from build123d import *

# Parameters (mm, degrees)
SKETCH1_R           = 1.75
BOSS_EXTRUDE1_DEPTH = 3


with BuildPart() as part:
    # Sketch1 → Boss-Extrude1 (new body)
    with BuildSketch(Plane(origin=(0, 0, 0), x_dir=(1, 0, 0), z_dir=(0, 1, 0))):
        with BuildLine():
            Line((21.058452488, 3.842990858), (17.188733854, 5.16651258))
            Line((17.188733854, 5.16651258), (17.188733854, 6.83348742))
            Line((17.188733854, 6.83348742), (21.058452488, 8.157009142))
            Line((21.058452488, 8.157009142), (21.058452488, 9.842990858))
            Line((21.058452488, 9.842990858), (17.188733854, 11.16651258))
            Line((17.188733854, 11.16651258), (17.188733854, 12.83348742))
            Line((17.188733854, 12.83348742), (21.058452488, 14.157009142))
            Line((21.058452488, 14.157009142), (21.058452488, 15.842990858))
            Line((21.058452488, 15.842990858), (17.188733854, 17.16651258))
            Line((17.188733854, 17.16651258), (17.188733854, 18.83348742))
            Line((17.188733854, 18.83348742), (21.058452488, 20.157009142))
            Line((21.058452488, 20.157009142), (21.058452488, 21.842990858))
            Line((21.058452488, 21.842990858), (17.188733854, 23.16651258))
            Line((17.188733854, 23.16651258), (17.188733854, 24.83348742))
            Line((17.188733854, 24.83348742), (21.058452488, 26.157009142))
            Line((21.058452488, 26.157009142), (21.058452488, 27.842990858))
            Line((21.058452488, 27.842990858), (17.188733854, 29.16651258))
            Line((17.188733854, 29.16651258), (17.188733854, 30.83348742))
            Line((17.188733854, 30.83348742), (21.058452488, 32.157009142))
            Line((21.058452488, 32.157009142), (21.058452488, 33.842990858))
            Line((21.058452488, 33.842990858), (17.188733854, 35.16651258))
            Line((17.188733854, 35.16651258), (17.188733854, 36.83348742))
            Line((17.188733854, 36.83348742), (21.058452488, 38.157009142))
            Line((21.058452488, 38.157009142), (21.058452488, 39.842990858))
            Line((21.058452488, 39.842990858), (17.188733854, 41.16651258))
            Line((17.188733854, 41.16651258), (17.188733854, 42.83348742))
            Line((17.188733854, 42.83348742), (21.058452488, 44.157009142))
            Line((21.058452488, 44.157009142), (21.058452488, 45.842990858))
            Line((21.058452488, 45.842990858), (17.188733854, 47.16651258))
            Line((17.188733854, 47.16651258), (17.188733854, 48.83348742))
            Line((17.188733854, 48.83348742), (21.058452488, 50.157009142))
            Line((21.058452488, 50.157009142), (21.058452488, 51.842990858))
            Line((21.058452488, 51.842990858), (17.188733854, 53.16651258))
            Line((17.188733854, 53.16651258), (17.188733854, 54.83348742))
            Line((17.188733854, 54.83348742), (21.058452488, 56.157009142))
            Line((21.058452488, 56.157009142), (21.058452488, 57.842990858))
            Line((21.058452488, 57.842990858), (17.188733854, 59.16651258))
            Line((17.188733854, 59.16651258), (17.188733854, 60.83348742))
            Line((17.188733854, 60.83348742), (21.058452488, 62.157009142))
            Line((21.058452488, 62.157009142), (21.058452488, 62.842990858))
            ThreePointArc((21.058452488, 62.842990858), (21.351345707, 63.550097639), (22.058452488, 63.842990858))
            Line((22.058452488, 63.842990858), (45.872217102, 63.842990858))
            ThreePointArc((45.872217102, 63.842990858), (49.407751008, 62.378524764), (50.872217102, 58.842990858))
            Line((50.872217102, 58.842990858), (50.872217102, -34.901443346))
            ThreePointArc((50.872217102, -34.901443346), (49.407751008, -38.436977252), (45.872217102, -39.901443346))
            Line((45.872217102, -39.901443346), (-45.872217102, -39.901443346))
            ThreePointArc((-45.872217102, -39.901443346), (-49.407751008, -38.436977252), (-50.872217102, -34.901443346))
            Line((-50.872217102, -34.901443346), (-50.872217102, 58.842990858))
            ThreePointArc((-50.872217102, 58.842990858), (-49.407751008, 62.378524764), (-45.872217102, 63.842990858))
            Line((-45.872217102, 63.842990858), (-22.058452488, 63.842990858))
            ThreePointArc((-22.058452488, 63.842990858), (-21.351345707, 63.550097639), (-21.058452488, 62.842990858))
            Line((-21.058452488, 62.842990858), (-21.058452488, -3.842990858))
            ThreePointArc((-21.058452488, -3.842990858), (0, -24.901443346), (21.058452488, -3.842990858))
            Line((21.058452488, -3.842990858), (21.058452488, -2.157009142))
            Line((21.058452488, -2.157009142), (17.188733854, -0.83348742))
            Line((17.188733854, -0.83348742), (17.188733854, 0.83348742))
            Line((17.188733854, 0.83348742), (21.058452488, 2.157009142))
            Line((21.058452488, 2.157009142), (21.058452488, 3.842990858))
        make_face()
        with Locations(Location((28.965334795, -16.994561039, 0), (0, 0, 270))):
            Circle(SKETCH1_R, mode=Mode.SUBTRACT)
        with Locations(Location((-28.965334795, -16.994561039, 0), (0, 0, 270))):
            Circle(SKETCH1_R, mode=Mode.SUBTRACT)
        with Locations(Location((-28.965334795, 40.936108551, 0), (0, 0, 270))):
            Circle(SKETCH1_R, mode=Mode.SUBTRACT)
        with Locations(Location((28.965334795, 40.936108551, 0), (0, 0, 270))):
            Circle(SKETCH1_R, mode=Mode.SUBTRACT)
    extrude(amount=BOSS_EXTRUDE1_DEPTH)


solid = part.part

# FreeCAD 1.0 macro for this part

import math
import FreeCAD as App
import Part
import Sketcher
from FreeCAD import Vector

doc = App.newDocument("Part")
body = doc.addObject("PartDesign::Body", "Body")

# Sketch on XZ plane
sketch1 = body.newObject("Sketcher::SketchObject", "Sketch")
sketch1.AttachmentSupport = (doc.getObject("XZ_Plane"), [""])
sketch1.MapMode = "FlatFace"
sketch1.addGeometry([
    Part.LineSegment(Vector(17.2, -5.2, 0), Vector(21.1, -3.8, 0)),  # 0
    Part.LineSegment(Vector(21.1, -3.8, 0), Vector(21.1, -2.2, 0)),  # 1
    Part.LineSegment(Vector(21.1, -2.2, 0), Vector(17.2, -0.8, 0)),  # 2
    Part.LineSegment(Vector(17.2, -0.8, 0), Vector(17.2, 0.8, 0)),  # 3
    Part.LineSegment(Vector(17.2, 0.8, 0), Vector(21.1, 2.2, 0)),  # 4
    Part.LineSegment(Vector(21.1, 2.2, 0), Vector(21.1, 3.8, 0)),  # 5
    Part.ArcOfCircle(Part.Circle(Vector(0, 3.8, 0), Vector(0, 0, 1), 21.1), math.radians(0), math.radians(180)),  # 6
    Part.LineSegment(Vector(-21.1, 3.8, 0), Vector(-21.1, -62.8, 0)),  # 7
    Part.ArcOfCircle(Part.Circle(Vector(-22.1, -62.8, 0), Vector(0, 0, 1), 1), math.radians(-90), math.radians(0)),  # 8
    Part.LineSegment(Vector(-22.1, -63.8, 0), Vector(-45.9, -63.8, 0)),  # 9
    Part.ArcOfCircle(Part.Circle(Vector(-45.9, -58.8, 0), Vector(0, 0, 1), 5), math.radians(180), math.radians(270)),  # 10
    Part.LineSegment(Vector(-50.9, -58.8, 0), Vector(-50.9, 34.9, 0)),  # 11
    Part.ArcOfCircle(Part.Circle(Vector(-45.9, 34.9, 0), Vector(0, 0, 1), 5), math.radians(90), math.radians(180)),  # 12
    Part.LineSegment(Vector(-45.9, 39.9, 0), Vector(45.9, 39.9, 0)),  # 13
    Part.ArcOfCircle(Part.Circle(Vector(45.9, 34.9, 0), Vector(0, 0, 1), 5), math.radians(0), math.radians(90)),  # 14
    Part.LineSegment(Vector(50.9, 34.9, 0), Vector(50.9, -58.8, 0)),  # 15
    Part.ArcOfCircle(Part.Circle(Vector(45.9, -58.8, 0), Vector(0, 0, 1), 5), math.radians(-90), math.radians(0)),  # 16
    Part.LineSegment(Vector(45.9, -63.8, 0), Vector(22.1, -63.8, 0)),  # 17
    Part.ArcOfCircle(Part.Circle(Vector(22.1, -62.8, 0), Vector(0, 0, 1), 1), math.radians(-180), math.radians(-90)),  # 18
    Part.LineSegment(Vector(21.1, -62.8, 0), Vector(21.1, -62.2, 0)),  # 19
    Part.LineSegment(Vector(21.1, -62.2, 0), Vector(17.2, -60.8, 0)),  # 20
    Part.LineSegment(Vector(17.2, -60.8, 0), Vector(17.2, -59.2, 0)),  # 21
    Part.LineSegment(Vector(17.2, -59.2, 0), Vector(21.1, -57.8, 0)),  # 22
    Part.LineSegment(Vector(21.1, -57.8, 0), Vector(21.1, -56.2, 0)),  # 23
    Part.LineSegment(Vector(21.1, -56.2, 0), Vector(17.2, -54.8, 0)),  # 24
    Part.LineSegment(Vector(17.2, -54.8, 0), Vector(17.2, -53.2, 0)),  # 25
    Part.LineSegment(Vector(17.2, -53.2, 0), Vector(21.1, -51.8, 0)),  # 26
    Part.LineSegment(Vector(21.1, -51.8, 0), Vector(21.1, -50.2, 0)),  # 27
    Part.LineSegment(Vector(21.1, -50.2, 0), Vector(17.2, -48.8, 0)),  # 28
    Part.LineSegment(Vector(17.2, -48.8, 0), Vector(17.2, -47.2, 0)),  # 29
    Part.LineSegment(Vector(17.2, -47.2, 0), Vector(21.1, -45.8, 0)),  # 30
    Part.LineSegment(Vector(21.1, -45.8, 0), Vector(21.1, -44.2, 0)),  # 31
    Part.LineSegment(Vector(21.1, -44.2, 0), Vector(17.2, -42.8, 0)),  # 32
    Part.LineSegment(Vector(17.2, -42.8, 0), Vector(17.2, -41.2, 0)),  # 33
    Part.LineSegment(Vector(17.2, -41.2, 0), Vector(21.1, -39.8, 0)),  # 34
    Part.LineSegment(Vector(21.1, -39.8, 0), Vector(21.1, -38.2, 0)),  # 35
    Part.LineSegment(Vector(21.1, -38.2, 0), Vector(17.2, -36.8, 0)),  # 36
    Part.LineSegment(Vector(17.2, -36.8, 0), Vector(17.2, -35.2, 0)),  # 37
    Part.LineSegment(Vector(17.2, -35.2, 0), Vector(21.1, -33.8, 0)),  # 38
    Part.LineSegment(Vector(21.1, -33.8, 0), Vector(21.1, -32.2, 0)),  # 39
    Part.LineSegment(Vector(21.1, -32.2, 0), Vector(17.2, -30.8, 0)),  # 40
    Part.LineSegment(Vector(17.2, -30.8, 0), Vector(17.2, -29.2, 0)),  # 41
    Part.LineSegment(Vector(17.2, -29.2, 0), Vector(21.1, -27.8, 0)),  # 42
    Part.LineSegment(Vector(21.1, -27.8, 0), Vector(21.1, -26.2, 0)),  # 43
    Part.LineSegment(Vector(21.1, -26.2, 0), Vector(17.2, -24.8, 0)),  # 44
    Part.LineSegment(Vector(17.2, -24.8, 0), Vector(17.2, -23.2, 0)),  # 45
    Part.LineSegment(Vector(17.2, -23.2, 0), Vector(21.1, -21.8, 0)),  # 46
    Part.LineSegment(Vector(21.1, -21.8, 0), Vector(21.1, -20.2, 0)),  # 47
    Part.LineSegment(Vector(21.1, -20.2, 0), Vector(17.2, -18.8, 0)),  # 48
    Part.LineSegment(Vector(17.2, -18.8, 0), Vector(17.2, -17.2, 0)),  # 49
    Part.LineSegment(Vector(17.2, -17.2, 0), Vector(21.1, -15.8, 0)),  # 50
    Part.LineSegment(Vector(21.1, -15.8, 0), Vector(21.1, -14.2, 0)),  # 51
    Part.LineSegment(Vector(21.1, -14.2, 0), Vector(17.2, -12.8, 0)),  # 52
    Part.LineSegment(Vector(17.2, -12.8, 0), Vector(17.2, -11.2, 0)),  # 53
    Part.LineSegment(Vector(17.2, -11.2, 0), Vector(21.1, -9.8, 0)),  # 54
    Part.LineSegment(Vector(21.1, -9.8, 0), Vector(21.1, -8.2, 0)),  # 55
    Part.LineSegment(Vector(21.1, -8.2, 0), Vector(17.2, -6.8, 0)),  # 56
    Part.LineSegment(Vector(17.2, -6.8, 0), Vector(17.2, -5.2, 0)),  # 57
    Part.Circle(Vector(29, 17, 0), Vector(0, 0, 1), 1.8),  # 58
    Part.Circle(Vector(-29, 17, 0), Vector(0, 0, 1), 1.8),  # 59
    Part.Circle(Vector(29, -40.9, 0), Vector(0, 0, 1), 1.8),  # 60
    Part.Circle(Vector(-29, -40.9, 0), Vector(0, 0, 1), 1.8),  # 61
], False)
sketch1.addConstraint([
    Sketcher.Constraint("Coincident", 0, 2, 1, 1),
    Sketcher.Constraint("Coincident", 1, 2, 2, 1),
    Sketcher.Constraint("Coincident", 2, 2, 3, 1),
    Sketcher.Constraint("Coincident", 3, 2, 4, 1),
    Sketcher.Constraint("Coincident", 4, 2, 5, 1),
    Sketcher.Constraint("Tangent", 5, 2, 6, 1),
    Sketcher.Constraint("Tangent", 6, 2, 7, 1),
    Sketcher.Constraint("Tangent", 7, 2, 8, 2),
    Sketcher.Constraint("Tangent", 8, 1, 9, 1),
    Sketcher.Constraint("Tangent", 9, 2, 10, 2),
    Sketcher.Constraint("Tangent", 10, 1, 11, 1),
    Sketcher.Constraint("Tangent", 11, 2, 12, 2),
    Sketcher.Constraint("Tangent", 12, 1, 13, 1),
    Sketcher.Constraint("Tangent", 13, 2, 14, 2),
    Sketcher.Constraint("Tangent", 14, 1, 15, 1),
    Sketcher.Constraint("Tangent", 15, 2, 16, 2),
    Sketcher.Constraint("Tangent", 16, 1, 17, 1),
    Sketcher.Constraint("Tangent", 17, 2, 18, 2),
    Sketcher.Constraint("Tangent", 18, 1, 19, 1),
    Sketcher.Constraint("Coincident", 19, 2, 20, 1),
    Sketcher.Constraint("Coincident", 20, 2, 21, 1),
    Sketcher.Constraint("Coincident", 21, 2, 22, 1),
    Sketcher.Constraint("Coincident", 22, 2, 23, 1),
    Sketcher.Constraint("Coincident", 23, 2, 24, 1),
    Sketcher.Constraint("Coincident", 24, 2, 25, 1),
    Sketcher.Constraint("Coincident", 25, 2, 26, 1),
    Sketcher.Constraint("Coincident", 26, 2, 27, 1),
    Sketcher.Constraint("Coincident", 27, 2, 28, 1),
    Sketcher.Constraint("Coincident", 28, 2, 29, 1),
    Sketcher.Constraint("Coincident", 29, 2, 30, 1),
    Sketcher.Constraint("Coincident", 30, 2, 31, 1),
    Sketcher.Constraint("Coincident", 31, 2, 32, 1),
    Sketcher.Constraint("Coincident", 32, 2, 33, 1),
    Sketcher.Constraint("Coincident", 33, 2, 34, 1),
    Sketcher.Constraint("Coincident", 34, 2, 35, 1),
    Sketcher.Constraint("Coincident", 35, 2, 36, 1),
    Sketcher.Constraint("Coincident", 36, 2, 37, 1),
    Sketcher.Constraint("Coincident", 37, 2, 38, 1),
    Sketcher.Constraint("Coincident", 38, 2, 39, 1),
    Sketcher.Constraint("Coincident", 39, 2, 40, 1),
    Sketcher.Constraint("Coincident", 40, 2, 41, 1),
    Sketcher.Constraint("Coincident", 41, 2, 42, 1),
    Sketcher.Constraint("Coincident", 42, 2, 43, 1),
    Sketcher.Constraint("Coincident", 43, 2, 44, 1),
    Sketcher.Constraint("Coincident", 44, 2, 45, 1),
    Sketcher.Constraint("Coincident", 45, 2, 46, 1),
    Sketcher.Constraint("Coincident", 46, 2, 47, 1),
    Sketcher.Constraint("Coincident", 47, 2, 48, 1),
    Sketcher.Constraint("Coincident", 48, 2, 49, 1),
    Sketcher.Constraint("Coincident", 49, 2, 50, 1),
    Sketcher.Constraint("Coincident", 50, 2, 51, 1),
    Sketcher.Constraint("Coincident", 51, 2, 52, 1),
    Sketcher.Constraint("Coincident", 52, 2, 53, 1),
    Sketcher.Constraint("Coincident", 53, 2, 54, 1),
    Sketcher.Constraint("Coincident", 54, 2, 55, 1),
    Sketcher.Constraint("Coincident", 55, 2, 56, 1),
    Sketcher.Constraint("Coincident", 56, 2, 57, 1),
    Sketcher.Constraint("Coincident", 57, 2, 0, 1),
    Sketcher.Constraint("Vertical", 1),
    Sketcher.Constraint("Vertical", 3),
    Sketcher.Constraint("Vertical", 5),
    Sketcher.Constraint("Vertical", 7),
    Sketcher.Constraint("Horizontal", 9),
    Sketcher.Constraint("Vertical", 11),
    Sketcher.Constraint("Horizontal", 13),
    Sketcher.Constraint("Vertical", 15),
    Sketcher.Constraint("Horizontal", 17),
    Sketcher.Constraint("Vertical", 19),
    Sketcher.Constraint("Vertical", 21),
    Sketcher.Constraint("Vertical", 23),
    Sketcher.Constraint("Vertical", 25),
    Sketcher.Constraint("Vertical", 27),
    Sketcher.Constraint("Vertical", 29),
    Sketcher.Constraint("Vertical", 31),
    Sketcher.Constraint("Vertical", 33),
    Sketcher.Constraint("Vertical", 35),
    Sketcher.Constraint("Vertical", 37),
    Sketcher.Constraint("Vertical", 39),
    Sketcher.Constraint("Vertical", 41),
    Sketcher.Constraint("Vertical", 43),
    Sketcher.Constraint("Vertical", 45),
    Sketcher.Constraint("Vertical", 47),
    Sketcher.Constraint("Vertical", 49),
    Sketcher.Constraint("Vertical", 51),
    Sketcher.Constraint("Vertical", 53),
    Sketcher.Constraint("Vertical", 55),
    Sketcher.Constraint("Vertical", 57),
    Sketcher.Constraint("Equal", 10, 12),
    Sketcher.Constraint("Equal", 12, 14),
    Sketcher.Constraint("Equal", 14, 16),
    Sketcher.Constraint("Equal", 8, 18),
    Sketcher.Constraint("Equal", 58, 59),
    Sketcher.Constraint("Equal", 59, 60),
    Sketcher.Constraint("Equal", 60, 61),
    Sketcher.Constraint("Symmetric", 0, 2, 6, 2, -1, 1),
    Sketcher.Constraint("Symmetric", 10, 3, 16, 3, -2),
    Sketcher.Constraint("Symmetric", 58, 3, 59, 3, -2),
    Sketcher.Constraint("Symmetric", 60, 3, 61, 3, -2),
    Sketcher.Constraint("Symmetric", 1, 2, 4, 2, -1),
    Sketcher.Constraint("Parallel", 0, 4),
    Sketcher.Constraint("Parallel", 2, 20),
    Sketcher.Constraint("Parallel", 4, 22),
    Sketcher.Constraint("Parallel", 20, 24),
    Sketcher.Constraint("Parallel", 22, 26),
    Sketcher.Constraint("Parallel", 24, 28),
    Sketcher.Constraint("Parallel", 26, 30),
    Sketcher.Constraint("Parallel", 28, 32),
    Sketcher.Constraint("Parallel", 30, 34),
    Sketcher.Constraint("Parallel", 32, 36),
    Sketcher.Constraint("Parallel", 34, 38),
    Sketcher.Constraint("Parallel", 36, 40),
    Sketcher.Constraint("Parallel", 38, 42),
    Sketcher.Constraint("Parallel", 40, 44),
    Sketcher.Constraint("Parallel", 42, 46),
    Sketcher.Constraint("Parallel", 44, 48),
    Sketcher.Constraint("Parallel", 46, 50),
    Sketcher.Constraint("Parallel", 48, 52),
    Sketcher.Constraint("Parallel", 50, 54),
    Sketcher.Constraint("Parallel", 52, 56),
    Sketcher.Constraint("Vertical", 58, 3, 60, 3),
    Sketcher.Constraint("Vertical", 5, 2, 18, 1),
    Sketcher.Constraint("Vertical", 3, 2, 20, 2),
    Sketcher.Constraint("Vertical", 19, 2, 22, 2),
    Sketcher.Constraint("Vertical", 21, 2, 24, 2),
    Sketcher.Constraint("Vertical", 23, 2, 26, 2),
    Sketcher.Constraint("Vertical", 25, 2, 28, 2),
    Sketcher.Constraint("Vertical", 27, 2, 30, 2),
    Sketcher.Constraint("Vertical", 29, 2, 32, 2),
    Sketcher.Constraint("Vertical", 31, 2, 34, 2),
    Sketcher.Constraint("Vertical", 33, 2, 36, 2),
    Sketcher.Constraint("Vertical", 35, 2, 38, 2),
    Sketcher.Constraint("Vertical", 37, 2, 40, 2),
    Sketcher.Constraint("Vertical", 39, 2, 42, 2),
    Sketcher.Constraint("Vertical", 41, 2, 44, 2),
    Sketcher.Constraint("Vertical", 43, 2, 46, 2),
    Sketcher.Constraint("Vertical", 45, 2, 48, 2),
    Sketcher.Constraint("Vertical", 47, 2, 50, 2),
    Sketcher.Constraint("Vertical", 49, 2, 52, 2),
    Sketcher.Constraint("Vertical", 51, 2, 54, 2),
    Sketcher.Constraint("Vertical", 53, 2, 56, 2),
    Sketcher.Constraint("Equal", 3, 21),
    Sketcher.Constraint("Equal", 5, 23),
    Sketcher.Constraint("Equal", 21, 25),
    Sketcher.Constraint("Equal", 23, 27),
    Sketcher.Constraint("Equal", 25, 29),
    Sketcher.Constraint("Equal", 27, 31),
    Sketcher.Constraint("Equal", 29, 33),
    Sketcher.Constraint("Equal", 31, 35),
    Sketcher.Constraint("Equal", 33, 37),
    Sketcher.Constraint("Equal", 35, 39),
    Sketcher.Constraint("Equal", 37, 41),
    Sketcher.Constraint("Equal", 39, 43),
    Sketcher.Constraint("Equal", 41, 45),
    Sketcher.Constraint("Equal", 43, 47),
    Sketcher.Constraint("Equal", 45, 49),
    Sketcher.Constraint("Equal", 47, 51),
    Sketcher.Constraint("Equal", 49, 53),
    Sketcher.Constraint("Equal", 51, 55),
    Sketcher.Constraint("Equal", 53, 57),
    Sketcher.Constraint("Equal", 0, 2),
    Sketcher.Constraint("Radius", 8, 1.0),
    Sketcher.Constraint("Radius", 10, 5.0),
    Sketcher.Constraint("Diameter", 58, 3.5),
    Sketcher.Constraint("Radius", 6, 21.058452),
    Sketcher.Constraint("DistanceY", 1, 1, 1, 2, 1.685982),
    Sketcher.Constraint("DistanceY", 7, 2, 7, 1, 66.685982),
    Sketcher.Constraint("DistanceY", 19, 1, 19, 2, 0.685982),
    Sketcher.Constraint("DistanceX", 9, 2, 9, 1, 23.813765),
    Sketcher.Constraint("DistanceY", 3, 1, 3, 2, 1.666975),
    Sketcher.Constraint("DistanceY", 11, 1, 11, 2, 93.744434),
    Sketcher.Constraint("DistanceY", -1, 1, 58, 3, 16.994561),
    Sketcher.Constraint("DistanceY", 60, 3, -1, 1, 40.936109),
    Sketcher.Constraint("Distance", 0, 4.089796),
    Sketcher.Constraint("DistanceX", -1, 1, 58, 3, 28.965335),
])
pad1 = body.newObject("PartDesign::Pad", "Pad")
pad1.Profile = sketch1
pad1.Length = 3
pad1.Reversed = True

doc.recompute()
